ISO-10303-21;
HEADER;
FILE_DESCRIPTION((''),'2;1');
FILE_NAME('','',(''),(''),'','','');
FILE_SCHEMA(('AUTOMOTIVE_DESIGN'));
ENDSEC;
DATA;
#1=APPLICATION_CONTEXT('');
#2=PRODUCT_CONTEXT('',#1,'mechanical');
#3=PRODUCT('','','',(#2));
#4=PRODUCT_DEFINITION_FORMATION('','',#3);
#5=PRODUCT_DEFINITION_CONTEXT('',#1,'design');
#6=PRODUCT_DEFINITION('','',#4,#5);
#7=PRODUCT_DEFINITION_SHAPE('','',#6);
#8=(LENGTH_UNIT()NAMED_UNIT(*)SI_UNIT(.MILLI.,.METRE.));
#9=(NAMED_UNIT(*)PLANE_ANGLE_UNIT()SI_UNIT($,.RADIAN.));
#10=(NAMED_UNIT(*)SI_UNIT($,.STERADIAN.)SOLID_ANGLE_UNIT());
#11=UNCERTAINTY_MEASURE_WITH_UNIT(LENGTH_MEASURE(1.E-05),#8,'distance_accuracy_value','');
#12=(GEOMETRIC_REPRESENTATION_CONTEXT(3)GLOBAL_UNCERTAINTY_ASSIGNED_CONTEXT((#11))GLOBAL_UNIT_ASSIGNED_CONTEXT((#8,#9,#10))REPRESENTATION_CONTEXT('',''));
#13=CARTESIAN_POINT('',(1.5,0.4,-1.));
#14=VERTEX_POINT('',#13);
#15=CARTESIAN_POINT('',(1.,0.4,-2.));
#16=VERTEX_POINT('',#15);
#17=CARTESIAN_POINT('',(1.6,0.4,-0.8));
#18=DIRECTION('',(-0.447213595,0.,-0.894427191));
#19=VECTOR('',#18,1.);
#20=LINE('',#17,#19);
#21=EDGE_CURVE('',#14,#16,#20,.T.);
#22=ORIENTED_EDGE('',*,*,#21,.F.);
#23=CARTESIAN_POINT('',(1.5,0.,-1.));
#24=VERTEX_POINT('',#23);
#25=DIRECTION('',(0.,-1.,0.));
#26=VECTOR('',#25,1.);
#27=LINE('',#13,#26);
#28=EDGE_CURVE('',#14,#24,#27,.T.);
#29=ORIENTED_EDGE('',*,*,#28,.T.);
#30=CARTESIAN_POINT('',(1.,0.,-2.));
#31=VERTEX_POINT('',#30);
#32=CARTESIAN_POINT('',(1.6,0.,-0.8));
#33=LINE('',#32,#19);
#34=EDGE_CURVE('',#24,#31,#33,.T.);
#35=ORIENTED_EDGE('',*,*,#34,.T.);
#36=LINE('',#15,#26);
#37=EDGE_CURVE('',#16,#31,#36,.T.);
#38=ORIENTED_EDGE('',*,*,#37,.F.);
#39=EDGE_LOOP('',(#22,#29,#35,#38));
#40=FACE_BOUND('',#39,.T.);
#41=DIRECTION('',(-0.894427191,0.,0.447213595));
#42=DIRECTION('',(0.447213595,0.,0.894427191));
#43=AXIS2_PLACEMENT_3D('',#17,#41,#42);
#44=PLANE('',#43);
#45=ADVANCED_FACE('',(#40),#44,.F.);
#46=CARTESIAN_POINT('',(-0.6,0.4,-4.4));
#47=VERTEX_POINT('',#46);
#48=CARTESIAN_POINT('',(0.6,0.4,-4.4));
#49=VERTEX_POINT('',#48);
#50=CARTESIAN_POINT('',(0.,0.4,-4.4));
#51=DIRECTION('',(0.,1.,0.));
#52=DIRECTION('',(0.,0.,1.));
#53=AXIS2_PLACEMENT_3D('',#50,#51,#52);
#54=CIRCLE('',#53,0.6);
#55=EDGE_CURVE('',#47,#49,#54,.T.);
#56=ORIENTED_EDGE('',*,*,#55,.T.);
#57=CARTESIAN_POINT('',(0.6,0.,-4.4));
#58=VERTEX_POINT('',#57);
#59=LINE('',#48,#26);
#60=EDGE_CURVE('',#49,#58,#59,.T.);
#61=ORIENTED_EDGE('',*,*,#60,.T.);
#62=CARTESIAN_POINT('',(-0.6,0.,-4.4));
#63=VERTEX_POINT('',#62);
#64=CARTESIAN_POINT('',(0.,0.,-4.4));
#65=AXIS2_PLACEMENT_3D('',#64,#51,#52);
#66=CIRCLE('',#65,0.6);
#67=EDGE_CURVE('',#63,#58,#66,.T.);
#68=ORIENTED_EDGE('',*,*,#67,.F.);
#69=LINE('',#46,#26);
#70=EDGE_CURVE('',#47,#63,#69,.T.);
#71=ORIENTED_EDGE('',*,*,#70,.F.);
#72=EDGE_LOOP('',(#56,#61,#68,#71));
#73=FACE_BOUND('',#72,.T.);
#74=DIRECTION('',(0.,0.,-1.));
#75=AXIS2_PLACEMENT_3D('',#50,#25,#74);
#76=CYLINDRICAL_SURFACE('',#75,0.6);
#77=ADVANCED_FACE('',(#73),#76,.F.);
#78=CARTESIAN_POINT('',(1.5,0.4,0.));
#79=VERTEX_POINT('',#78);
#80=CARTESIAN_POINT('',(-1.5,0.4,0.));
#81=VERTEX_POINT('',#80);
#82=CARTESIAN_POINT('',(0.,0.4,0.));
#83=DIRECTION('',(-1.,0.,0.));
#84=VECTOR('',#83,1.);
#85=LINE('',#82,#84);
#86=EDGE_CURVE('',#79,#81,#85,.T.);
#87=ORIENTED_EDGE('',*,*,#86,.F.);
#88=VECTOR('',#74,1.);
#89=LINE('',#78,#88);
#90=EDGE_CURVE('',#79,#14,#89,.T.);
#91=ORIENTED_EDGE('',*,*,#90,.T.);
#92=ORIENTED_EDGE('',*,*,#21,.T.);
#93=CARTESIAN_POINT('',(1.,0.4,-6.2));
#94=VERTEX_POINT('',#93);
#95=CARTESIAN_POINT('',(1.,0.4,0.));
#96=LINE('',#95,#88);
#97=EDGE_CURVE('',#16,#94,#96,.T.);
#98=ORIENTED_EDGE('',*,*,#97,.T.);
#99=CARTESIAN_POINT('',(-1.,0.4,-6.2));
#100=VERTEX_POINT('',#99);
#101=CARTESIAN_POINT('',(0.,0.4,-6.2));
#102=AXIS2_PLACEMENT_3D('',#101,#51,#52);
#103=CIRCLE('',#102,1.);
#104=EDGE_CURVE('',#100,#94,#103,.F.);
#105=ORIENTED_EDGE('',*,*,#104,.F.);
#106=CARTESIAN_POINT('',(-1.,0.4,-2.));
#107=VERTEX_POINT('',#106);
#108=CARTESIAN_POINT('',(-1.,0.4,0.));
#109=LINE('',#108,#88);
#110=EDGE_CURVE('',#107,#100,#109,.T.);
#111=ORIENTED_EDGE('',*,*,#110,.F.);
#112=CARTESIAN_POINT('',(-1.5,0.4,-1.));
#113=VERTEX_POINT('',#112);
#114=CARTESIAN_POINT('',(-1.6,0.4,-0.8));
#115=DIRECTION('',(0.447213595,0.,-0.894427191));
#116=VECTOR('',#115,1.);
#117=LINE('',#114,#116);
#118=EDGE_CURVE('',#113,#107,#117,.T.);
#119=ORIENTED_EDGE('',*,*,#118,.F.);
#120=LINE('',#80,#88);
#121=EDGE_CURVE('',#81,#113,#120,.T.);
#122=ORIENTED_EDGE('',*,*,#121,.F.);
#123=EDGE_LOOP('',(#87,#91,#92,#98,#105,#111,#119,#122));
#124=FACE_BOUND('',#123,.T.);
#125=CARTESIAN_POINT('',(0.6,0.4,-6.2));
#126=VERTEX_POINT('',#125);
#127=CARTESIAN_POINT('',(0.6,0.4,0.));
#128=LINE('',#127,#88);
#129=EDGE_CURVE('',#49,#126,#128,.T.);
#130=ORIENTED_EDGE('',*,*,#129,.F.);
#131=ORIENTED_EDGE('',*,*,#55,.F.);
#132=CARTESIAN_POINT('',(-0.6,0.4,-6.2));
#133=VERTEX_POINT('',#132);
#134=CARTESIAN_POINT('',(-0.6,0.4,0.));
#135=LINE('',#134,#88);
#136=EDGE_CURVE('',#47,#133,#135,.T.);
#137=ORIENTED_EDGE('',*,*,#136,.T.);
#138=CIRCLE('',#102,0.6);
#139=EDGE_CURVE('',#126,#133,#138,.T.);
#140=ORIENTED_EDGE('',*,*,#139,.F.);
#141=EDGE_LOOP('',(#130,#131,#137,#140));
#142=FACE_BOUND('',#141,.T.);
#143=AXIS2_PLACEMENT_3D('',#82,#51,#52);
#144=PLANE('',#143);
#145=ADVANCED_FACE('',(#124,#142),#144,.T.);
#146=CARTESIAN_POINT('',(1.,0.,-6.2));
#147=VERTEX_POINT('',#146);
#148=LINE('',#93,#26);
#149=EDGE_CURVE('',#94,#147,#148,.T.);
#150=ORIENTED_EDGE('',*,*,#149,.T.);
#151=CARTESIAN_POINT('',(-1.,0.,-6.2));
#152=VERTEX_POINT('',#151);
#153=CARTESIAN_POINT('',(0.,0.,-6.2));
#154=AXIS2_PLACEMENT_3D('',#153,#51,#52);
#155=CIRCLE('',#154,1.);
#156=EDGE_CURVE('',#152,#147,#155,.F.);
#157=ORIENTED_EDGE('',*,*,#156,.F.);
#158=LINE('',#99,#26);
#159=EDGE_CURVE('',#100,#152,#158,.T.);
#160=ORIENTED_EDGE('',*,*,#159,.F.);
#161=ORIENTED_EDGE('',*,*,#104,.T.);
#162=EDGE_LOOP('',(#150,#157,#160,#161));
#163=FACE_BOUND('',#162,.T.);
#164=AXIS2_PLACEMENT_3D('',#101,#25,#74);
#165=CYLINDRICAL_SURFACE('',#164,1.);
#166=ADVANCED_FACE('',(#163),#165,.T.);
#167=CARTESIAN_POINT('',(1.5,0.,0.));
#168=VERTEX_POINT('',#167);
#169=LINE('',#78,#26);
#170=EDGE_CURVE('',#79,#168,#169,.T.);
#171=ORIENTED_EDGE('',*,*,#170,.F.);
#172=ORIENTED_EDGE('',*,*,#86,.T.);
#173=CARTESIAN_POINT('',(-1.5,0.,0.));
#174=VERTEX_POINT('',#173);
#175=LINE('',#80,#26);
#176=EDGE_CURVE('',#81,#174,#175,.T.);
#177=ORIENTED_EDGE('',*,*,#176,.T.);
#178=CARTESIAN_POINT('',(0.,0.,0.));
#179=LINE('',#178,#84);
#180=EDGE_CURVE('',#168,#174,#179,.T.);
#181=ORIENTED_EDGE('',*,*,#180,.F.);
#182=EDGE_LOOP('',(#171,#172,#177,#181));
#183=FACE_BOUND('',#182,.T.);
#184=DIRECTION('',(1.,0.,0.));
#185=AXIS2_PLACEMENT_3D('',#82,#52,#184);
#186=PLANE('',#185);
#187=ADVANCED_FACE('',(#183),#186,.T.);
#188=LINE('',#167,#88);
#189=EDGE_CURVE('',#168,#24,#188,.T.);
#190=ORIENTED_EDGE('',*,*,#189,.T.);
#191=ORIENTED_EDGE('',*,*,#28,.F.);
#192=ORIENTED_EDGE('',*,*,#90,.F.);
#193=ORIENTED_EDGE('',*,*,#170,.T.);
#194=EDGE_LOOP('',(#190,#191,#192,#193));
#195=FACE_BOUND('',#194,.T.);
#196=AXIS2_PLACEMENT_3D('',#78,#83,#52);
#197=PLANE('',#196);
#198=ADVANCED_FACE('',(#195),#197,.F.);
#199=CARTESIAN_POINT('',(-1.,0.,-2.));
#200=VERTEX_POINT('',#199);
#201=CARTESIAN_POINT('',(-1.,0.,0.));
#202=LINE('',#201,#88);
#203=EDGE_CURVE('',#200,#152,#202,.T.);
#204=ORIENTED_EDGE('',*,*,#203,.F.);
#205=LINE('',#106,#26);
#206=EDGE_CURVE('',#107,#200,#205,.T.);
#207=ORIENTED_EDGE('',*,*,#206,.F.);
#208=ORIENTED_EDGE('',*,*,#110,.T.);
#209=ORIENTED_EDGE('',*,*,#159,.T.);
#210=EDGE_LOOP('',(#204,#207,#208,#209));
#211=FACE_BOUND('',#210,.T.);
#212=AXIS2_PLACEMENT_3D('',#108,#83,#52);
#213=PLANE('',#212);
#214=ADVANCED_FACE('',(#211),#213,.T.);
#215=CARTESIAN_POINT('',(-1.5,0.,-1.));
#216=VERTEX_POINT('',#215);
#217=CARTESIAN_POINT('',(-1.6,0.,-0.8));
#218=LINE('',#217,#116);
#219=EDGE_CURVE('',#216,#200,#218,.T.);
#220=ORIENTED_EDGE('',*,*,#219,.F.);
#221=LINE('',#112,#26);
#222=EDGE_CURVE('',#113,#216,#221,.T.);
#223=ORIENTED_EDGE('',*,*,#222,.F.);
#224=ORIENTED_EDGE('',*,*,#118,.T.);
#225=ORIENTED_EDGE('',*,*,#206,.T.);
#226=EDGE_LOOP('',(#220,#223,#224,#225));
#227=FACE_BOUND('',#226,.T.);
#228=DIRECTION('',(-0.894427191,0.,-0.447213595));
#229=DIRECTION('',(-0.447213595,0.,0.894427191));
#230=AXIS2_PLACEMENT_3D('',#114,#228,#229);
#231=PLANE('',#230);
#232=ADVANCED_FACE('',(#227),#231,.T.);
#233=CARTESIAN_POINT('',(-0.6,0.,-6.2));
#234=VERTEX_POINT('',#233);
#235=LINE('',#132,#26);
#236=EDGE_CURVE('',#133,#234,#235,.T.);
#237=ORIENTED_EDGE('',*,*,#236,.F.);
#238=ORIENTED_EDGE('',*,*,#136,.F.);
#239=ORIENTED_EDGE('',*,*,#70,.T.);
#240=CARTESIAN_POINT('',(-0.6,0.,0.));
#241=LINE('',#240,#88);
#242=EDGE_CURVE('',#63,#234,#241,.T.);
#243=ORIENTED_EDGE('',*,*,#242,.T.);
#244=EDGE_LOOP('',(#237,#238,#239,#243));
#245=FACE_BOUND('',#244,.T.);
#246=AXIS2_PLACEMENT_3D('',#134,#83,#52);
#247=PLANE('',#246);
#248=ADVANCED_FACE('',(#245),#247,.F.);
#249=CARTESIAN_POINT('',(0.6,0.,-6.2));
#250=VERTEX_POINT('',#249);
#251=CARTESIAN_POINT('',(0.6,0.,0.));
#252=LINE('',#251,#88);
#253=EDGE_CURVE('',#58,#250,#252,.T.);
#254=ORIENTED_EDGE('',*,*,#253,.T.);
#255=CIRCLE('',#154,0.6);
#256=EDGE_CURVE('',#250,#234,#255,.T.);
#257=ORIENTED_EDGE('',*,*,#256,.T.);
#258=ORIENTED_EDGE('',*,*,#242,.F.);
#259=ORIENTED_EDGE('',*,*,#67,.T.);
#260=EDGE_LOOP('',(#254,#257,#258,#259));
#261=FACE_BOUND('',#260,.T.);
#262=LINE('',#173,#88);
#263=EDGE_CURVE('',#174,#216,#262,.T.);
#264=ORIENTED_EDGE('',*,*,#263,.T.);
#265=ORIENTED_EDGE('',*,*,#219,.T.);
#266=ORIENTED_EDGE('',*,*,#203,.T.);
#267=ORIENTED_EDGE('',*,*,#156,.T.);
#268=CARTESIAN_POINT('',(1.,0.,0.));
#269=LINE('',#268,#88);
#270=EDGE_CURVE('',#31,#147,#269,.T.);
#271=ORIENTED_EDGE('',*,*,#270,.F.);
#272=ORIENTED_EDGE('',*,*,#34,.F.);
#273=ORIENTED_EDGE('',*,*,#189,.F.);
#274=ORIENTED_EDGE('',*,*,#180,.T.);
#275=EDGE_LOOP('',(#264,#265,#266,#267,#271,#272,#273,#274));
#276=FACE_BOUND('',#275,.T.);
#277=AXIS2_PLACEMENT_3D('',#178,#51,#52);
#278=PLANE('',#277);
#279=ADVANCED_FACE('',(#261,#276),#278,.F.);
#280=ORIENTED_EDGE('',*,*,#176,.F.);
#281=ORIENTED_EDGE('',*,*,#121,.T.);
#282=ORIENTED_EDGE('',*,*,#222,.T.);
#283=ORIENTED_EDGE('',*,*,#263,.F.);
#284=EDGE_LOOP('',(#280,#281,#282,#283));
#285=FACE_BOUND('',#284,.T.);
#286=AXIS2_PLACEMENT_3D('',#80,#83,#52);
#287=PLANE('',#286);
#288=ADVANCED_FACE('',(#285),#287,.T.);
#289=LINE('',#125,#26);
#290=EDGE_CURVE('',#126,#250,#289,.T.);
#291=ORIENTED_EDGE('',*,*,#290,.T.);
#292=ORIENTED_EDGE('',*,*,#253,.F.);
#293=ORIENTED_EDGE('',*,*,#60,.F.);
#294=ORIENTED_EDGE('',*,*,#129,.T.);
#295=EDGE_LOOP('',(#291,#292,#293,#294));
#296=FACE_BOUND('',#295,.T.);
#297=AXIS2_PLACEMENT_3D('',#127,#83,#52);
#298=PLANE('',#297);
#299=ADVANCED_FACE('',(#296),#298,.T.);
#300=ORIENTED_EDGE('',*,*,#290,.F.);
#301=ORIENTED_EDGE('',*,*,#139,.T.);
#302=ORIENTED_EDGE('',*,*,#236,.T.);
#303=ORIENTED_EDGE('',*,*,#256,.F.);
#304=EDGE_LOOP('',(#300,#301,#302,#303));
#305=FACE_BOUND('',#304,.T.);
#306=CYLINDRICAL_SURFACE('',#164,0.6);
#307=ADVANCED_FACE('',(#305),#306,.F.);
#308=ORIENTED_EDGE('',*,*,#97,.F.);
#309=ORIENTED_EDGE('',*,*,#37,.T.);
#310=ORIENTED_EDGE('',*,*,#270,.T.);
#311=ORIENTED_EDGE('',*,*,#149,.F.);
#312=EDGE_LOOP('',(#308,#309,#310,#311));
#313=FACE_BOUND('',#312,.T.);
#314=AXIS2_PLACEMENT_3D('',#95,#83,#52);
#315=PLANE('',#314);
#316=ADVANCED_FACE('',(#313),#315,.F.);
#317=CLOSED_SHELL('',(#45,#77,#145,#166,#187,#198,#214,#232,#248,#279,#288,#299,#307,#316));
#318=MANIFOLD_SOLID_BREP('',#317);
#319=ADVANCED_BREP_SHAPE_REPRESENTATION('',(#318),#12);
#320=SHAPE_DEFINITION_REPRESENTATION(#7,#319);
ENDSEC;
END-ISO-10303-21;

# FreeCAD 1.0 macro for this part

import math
import FreeCAD as App
import Part
import Sketcher
from FreeCAD import Vector

doc = App.newDocument("Part")
body = doc.addObject("PartDesign::Body", "Body")

sketch1 = body.newObject("Sketcher::SketchObject", "Sketch")
sketch1.AttachmentSupport = (doc.getObject("XZ_Plane"), [""])
sketch1.MapMode = "FlatFace"
sketch1.addGeometry([
    Part.LineSegment(Vector(-1.5, 0, 0), Vector(1.5, 0, 0)),
    Part.LineSegment(Vector(1.5, 0, 0), Vector(1.5, -1, 0)),
    Part.LineSegment(Vector(1.5, -1, 0), Vector(1, -2, 0)),
    Part.LineSegment(Vector(1, -2, 0), Vector(1, -6.2, 0)),
    Part.ArcOfCircle(Part.Circle(Vector(0, -6.2, 0), Vector(0, 0, 1), 1), math.radians(180), math.radians(360)),
    Part.LineSegment(Vector(-1, -6.2, 0), Vector(-1, -2, 0)),
    Part.LineSegment(Vector(-1, -2, 0), Vector(-1.5, -1, 0)),
    Part.LineSegment(Vector(-1.5, -1, 0), Vector(-1.5, 0, 0)),
    Part.LineSegment(Vector(-0.6, -4.4, 0), Vector(-0.6, -6.2, 0)),
    Part.ArcOfCircle(Part.Circle(Vector(0, -6.2, 0), Vector(0, 0, 1), 0.6), math.radians(180), math.radians(360)),
    Part.LineSegment(Vector(0.6, -6.2, 0), Vector(0.6, -4.4, 0)),
    Part.ArcOfCircle(Part.Circle(Vector(0, -4.4, 0), Vector(0, 0, 1), 0.6), math.radians(0), math.radians(180)),
], False)
sketch1.addConstraint([
    Sketcher.Constraint("Coincident", 0, 2, 1, 1),
    Sketcher.Constraint("Coincident", 1, 2, 2, 1),
    Sketcher.Constraint("Coincident", 2, 2, 3, 1),
    Sketcher.Constraint("Tangent", 3, 2, 4, 2),
    Sketcher.Constraint("Tangent", 4, 1, 5, 1),
    Sketcher.Constraint("Coincident", 5, 2, 6, 1),
    Sketcher.Constraint("Coincident", 6, 2, 7, 1),
    Sketcher.Constraint("Coincident", 7, 2, 0, 1),
    Sketcher.Constraint("Tangent", 8, 2, 9, 1),
    Sketcher.Constraint("Tangent", 9, 2, 10, 1),
    Sketcher.Constraint("Tangent", 10, 2, 11, 1),
    Sketcher.Constraint("Tangent", 11, 2, 8, 1),
    Sketcher.Constraint("Horizontal", 0),
    Sketcher.Constraint("Vertical", 1),
    Sketcher.Constraint("Vertical", 3),
    Sketcher.Constraint("Vertical", 5),
    Sketcher.Constraint("Vertical", 7),
    Sketcher.Constraint("Vertical", 8),
    Sketcher.Constraint("Vertical", 10),
    Sketcher.Constraint("Coincident", 9, 3, 4, 3),
    Sketcher.Constraint("Symmetric", 0, 2, 7, 2, -1, 1),
    Sketcher.Constraint("Symmetric", 2, 2, 5, 2, -2),
    Sketcher.Constraint("Horizontal", 1, 2, 6, 2),
    Sketcher.Constraint("Radius", 4, 1.0),
    Sketcher.Constraint("Radius", 9, 0.6),
    Sketcher.Constraint("DistanceX", 0, 1, 0, 2, 3.0),
    Sketcher.Constraint("DistanceY", 1, 2, 1, 1, 1.0),
    Sketcher.Constraint("DistanceY", 3, 2, 3, 1, 4.2),
    Sketcher.Constraint("DistanceY", 8, 2, 8, 1, 1.8),
    Sketcher.Constraint("DistanceY", 2, 2, -1, 1, 2.0),
])
pad1 = body.newObject("PartDesign::Pad", "Pad")
pad1.Profile = sketch1
pad1.Length = 0.4
pad1.Reversed = True

doc.recompute()
